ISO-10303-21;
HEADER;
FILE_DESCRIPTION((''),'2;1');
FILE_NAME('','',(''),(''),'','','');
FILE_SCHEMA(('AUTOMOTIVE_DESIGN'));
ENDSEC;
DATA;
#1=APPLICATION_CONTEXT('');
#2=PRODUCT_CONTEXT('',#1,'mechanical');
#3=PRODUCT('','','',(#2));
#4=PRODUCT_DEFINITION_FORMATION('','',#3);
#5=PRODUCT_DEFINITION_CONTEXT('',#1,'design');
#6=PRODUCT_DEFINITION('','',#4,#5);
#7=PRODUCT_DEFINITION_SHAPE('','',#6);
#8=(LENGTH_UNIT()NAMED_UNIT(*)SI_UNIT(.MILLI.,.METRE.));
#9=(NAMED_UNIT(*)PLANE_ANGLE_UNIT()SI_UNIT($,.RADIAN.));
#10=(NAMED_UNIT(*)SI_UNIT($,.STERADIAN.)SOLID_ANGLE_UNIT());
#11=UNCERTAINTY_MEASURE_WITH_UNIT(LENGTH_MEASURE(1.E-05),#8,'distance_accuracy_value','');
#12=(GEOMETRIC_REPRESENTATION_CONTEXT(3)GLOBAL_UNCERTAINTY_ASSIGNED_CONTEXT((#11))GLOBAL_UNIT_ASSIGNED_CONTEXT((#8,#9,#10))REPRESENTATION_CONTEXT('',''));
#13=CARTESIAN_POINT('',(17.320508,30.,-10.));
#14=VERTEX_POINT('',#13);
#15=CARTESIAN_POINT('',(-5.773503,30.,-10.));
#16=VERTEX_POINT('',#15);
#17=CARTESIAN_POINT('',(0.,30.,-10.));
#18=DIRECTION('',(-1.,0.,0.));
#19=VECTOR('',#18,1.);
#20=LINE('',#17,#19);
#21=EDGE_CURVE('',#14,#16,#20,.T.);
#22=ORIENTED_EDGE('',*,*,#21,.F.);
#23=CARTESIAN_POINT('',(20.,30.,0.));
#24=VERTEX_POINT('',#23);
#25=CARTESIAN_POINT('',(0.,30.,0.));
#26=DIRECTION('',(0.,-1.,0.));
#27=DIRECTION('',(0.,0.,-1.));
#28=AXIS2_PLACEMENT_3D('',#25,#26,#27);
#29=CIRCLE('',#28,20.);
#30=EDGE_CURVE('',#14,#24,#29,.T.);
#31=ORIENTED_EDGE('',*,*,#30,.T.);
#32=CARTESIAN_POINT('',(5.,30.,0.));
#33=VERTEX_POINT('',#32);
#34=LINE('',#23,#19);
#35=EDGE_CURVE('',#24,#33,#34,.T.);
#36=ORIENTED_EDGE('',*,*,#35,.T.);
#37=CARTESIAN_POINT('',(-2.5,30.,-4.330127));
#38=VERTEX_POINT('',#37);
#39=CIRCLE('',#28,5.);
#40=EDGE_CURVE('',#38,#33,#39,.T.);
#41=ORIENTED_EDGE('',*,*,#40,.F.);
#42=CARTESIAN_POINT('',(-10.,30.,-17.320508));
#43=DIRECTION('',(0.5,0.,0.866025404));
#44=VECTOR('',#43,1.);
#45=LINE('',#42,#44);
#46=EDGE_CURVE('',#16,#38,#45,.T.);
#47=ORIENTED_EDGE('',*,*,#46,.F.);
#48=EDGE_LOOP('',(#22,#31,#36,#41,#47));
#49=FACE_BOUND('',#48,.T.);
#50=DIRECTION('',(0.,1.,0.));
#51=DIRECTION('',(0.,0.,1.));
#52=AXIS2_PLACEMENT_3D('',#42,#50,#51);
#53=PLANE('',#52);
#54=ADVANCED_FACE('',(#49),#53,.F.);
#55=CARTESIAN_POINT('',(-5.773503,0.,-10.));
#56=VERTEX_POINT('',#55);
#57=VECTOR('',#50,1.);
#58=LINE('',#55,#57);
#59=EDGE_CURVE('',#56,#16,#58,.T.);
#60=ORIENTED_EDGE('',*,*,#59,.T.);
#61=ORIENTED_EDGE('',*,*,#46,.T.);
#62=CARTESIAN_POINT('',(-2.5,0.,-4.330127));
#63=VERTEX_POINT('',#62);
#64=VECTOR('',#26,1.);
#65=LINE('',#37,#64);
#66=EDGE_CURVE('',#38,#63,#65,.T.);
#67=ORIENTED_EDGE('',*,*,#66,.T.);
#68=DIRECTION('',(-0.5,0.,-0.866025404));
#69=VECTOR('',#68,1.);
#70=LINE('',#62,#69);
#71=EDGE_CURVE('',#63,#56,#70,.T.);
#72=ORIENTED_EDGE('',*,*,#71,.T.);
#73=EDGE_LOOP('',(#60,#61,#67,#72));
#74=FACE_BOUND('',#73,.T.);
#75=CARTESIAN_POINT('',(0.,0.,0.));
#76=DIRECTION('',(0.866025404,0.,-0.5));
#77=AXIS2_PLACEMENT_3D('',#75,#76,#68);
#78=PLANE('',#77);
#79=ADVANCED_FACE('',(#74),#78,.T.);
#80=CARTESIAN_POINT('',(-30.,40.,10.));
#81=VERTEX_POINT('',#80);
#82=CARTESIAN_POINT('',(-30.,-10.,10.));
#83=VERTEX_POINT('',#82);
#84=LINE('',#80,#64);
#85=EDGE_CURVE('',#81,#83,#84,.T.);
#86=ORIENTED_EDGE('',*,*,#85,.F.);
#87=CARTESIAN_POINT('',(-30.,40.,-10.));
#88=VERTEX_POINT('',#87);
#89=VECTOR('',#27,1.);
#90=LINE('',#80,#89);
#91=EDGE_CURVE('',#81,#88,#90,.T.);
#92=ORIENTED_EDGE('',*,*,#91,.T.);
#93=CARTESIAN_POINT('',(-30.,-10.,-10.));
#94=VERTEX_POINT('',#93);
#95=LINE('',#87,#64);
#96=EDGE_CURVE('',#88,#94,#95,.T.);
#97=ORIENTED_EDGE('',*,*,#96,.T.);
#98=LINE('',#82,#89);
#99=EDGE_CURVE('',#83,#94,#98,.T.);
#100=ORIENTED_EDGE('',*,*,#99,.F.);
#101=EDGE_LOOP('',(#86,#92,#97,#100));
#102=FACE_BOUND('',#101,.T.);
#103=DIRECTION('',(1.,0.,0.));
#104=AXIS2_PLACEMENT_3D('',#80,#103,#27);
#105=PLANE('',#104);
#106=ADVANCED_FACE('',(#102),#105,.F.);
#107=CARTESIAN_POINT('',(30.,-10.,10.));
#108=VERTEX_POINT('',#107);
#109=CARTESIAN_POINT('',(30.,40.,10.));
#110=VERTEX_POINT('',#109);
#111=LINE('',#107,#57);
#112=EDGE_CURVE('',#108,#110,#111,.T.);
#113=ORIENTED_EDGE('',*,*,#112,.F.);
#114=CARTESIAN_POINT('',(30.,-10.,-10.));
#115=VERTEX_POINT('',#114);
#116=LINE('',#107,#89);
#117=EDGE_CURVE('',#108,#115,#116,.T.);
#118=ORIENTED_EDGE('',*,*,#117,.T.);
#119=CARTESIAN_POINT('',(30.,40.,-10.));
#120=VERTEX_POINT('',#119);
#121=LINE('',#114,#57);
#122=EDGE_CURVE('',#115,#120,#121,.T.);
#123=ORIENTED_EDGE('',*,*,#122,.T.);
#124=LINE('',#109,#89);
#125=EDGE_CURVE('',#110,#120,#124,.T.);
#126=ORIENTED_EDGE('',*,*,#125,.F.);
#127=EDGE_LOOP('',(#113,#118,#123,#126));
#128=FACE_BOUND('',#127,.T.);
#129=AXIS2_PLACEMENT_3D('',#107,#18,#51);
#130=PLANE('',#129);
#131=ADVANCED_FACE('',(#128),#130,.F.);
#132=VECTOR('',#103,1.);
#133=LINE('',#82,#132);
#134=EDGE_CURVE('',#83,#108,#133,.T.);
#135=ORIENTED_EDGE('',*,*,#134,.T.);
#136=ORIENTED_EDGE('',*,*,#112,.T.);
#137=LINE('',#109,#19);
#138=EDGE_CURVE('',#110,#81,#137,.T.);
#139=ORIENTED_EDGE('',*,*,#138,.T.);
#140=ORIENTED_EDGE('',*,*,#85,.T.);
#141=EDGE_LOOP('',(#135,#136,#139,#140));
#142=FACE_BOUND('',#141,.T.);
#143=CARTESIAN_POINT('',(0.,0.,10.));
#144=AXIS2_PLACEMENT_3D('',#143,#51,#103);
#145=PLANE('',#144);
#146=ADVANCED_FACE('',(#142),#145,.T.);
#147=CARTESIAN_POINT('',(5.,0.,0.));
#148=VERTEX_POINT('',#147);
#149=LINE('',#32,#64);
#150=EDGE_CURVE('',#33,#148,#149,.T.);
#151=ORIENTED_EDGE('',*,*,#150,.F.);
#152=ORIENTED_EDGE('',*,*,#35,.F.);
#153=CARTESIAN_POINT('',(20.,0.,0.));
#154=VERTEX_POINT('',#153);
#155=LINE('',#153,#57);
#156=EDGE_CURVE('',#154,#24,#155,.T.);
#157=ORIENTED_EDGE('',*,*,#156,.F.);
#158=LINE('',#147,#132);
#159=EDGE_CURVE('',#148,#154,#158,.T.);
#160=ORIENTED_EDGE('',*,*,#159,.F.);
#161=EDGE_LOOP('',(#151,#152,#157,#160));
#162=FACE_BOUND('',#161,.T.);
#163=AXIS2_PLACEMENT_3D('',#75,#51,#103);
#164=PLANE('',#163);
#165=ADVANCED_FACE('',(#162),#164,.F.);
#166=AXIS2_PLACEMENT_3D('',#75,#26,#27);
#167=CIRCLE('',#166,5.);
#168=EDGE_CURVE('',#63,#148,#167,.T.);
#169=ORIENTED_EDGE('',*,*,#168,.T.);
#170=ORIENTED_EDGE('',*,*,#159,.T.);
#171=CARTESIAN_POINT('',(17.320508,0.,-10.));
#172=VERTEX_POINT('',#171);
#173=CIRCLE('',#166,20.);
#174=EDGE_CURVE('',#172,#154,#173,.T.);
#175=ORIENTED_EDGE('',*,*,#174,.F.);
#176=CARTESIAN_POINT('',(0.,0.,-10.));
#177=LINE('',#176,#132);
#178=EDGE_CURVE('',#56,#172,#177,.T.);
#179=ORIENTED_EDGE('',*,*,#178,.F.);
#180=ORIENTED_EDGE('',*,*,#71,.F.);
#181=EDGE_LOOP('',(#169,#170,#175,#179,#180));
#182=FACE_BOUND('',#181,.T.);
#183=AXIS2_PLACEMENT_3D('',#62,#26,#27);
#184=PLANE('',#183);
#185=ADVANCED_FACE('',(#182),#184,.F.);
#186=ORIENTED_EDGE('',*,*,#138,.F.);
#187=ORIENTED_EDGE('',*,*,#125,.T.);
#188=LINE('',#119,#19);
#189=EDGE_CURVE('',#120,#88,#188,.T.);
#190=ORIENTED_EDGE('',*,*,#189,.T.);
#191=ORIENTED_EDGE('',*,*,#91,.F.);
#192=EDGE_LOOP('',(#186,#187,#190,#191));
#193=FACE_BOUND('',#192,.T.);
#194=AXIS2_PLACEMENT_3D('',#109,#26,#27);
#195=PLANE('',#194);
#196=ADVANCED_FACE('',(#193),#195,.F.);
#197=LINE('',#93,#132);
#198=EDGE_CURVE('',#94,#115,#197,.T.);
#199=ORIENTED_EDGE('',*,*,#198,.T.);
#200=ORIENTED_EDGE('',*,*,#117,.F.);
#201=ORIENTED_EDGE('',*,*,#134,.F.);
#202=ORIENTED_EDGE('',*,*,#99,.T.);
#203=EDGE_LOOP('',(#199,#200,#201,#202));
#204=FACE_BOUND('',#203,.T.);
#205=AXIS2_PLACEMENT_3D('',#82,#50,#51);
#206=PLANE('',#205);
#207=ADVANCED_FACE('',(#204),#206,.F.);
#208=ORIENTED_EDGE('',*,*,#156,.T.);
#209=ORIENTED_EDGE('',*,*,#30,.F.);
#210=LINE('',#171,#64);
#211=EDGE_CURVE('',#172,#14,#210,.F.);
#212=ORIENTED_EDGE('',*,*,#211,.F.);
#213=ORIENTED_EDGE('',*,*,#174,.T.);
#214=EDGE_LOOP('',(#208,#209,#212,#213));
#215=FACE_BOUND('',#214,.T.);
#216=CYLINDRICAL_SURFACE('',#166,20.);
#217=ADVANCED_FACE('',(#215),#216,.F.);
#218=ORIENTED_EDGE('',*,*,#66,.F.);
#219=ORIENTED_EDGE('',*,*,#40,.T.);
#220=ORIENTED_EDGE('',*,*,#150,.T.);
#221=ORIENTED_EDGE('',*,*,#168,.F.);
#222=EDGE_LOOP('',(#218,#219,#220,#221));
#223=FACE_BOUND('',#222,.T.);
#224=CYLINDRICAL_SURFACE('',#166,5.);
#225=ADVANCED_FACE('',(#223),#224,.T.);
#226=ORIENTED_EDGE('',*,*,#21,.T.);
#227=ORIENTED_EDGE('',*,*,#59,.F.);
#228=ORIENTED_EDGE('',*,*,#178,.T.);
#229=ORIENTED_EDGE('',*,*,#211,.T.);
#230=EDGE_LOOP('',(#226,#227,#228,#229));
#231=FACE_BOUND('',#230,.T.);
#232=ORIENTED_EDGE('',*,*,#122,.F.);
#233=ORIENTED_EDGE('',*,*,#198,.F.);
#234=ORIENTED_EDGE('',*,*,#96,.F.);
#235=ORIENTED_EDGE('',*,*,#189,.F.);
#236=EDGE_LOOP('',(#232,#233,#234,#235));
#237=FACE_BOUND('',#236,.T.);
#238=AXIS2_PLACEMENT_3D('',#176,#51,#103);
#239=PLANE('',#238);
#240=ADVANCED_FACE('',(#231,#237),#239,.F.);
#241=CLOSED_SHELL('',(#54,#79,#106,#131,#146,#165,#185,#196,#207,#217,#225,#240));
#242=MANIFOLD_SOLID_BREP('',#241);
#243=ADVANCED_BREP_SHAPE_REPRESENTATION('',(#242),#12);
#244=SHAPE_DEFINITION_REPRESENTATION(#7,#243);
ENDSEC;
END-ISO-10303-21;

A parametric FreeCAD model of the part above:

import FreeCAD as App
import Part
import Sketcher
Q = App.Units.Quantity

doc = App.newDocument("Part")
body = doc.addObject("PartDesign::Body", "Body")

sketch1 = body.newObject("Sketcher::SketchObject", "Sketch")
sketch1.AttachmentSupport = (doc.getObject("XY_Plane"), [""])
sketch1.MapMode = "FlatFace"
sketch1.addGeometry([
    Part.LineSegment(App.Vector(-30, 40, 0), App.Vector(-30, -10, 0)),
    Part.LineSegment(App.Vector(-30, -10, 0), App.Vector(30, -10, 0)),
    Part.LineSegment(App.Vector(30, -10, 0), App.Vector(30, 40, 0)),
    Part.LineSegment(App.Vector(30, 40, 0), App.Vector(-30, 40, 0)),
], False)
sketch1.addConstraint([
    Sketcher.Constraint("Coincident", 0, 2, 1, 1),
    Sketcher.Constraint("Coincident", 1, 2, 2, 1),
    Sketcher.Constraint("Coincident", 2, 2, 3, 1),
    Sketcher.Constraint("Coincident", 3, 2, 0, 1),
    Sketcher.Constraint("Vertical", 0),
    Sketcher.Constraint("Horizontal", 1),
    Sketcher.Constraint("Vertical", 2),
    Sketcher.Constraint("Horizontal", 3),
    Sketcher.Constraint("DistanceX", 1, 1, 1, 2, Q("60 mm")),
    Sketcher.Constraint("DistanceY", 0, 2, 0, 1, Q("50 mm")),
    Sketcher.Constraint("DistanceX", 0, 2, -1, 1, Q("30 mm")),
    Sketcher.Constraint("DistanceY", 0, 2, -1, 1, Q("10 mm")),
])
pad1 = body.newObject("PartDesign::Pad", "Pad")
pad1.Profile = sketch1
pad1.Length = 20
pad1.Midplane = True

sketch2 = body.newObject("Sketcher::SketchObject", "Sketch001")
sketch2.AttachmentSupport = (doc.getObject("XY_Plane"), [""])
sketch2.MapMode = "FlatFace"
sketch2.addGeometry([
    Part.LineSegment(App.Vector(5, 30, 0), App.Vector(5, 0, 0)),
    Part.LineSegment(App.Vector(5, 0, 0), App.Vector(20, 0, 0)),
    Part.LineSegment(App.Vector(20, 0, 0), App.Vector(20, 30, 0)),
    Part.LineSegment(App.Vector(20, 30, 0), App.Vector(5, 30, 0)),
], False)
sketch2.addConstraint([
    Sketcher.Constraint("Coincident", 0, 2, 1, 1),
    Sketcher.Constraint("Coincident", 1, 2, 2, 1),
    Sketcher.Constraint("Coincident", 2, 2, 3, 1),
    Sketcher.Constraint("Coincident", 3, 2, 0, 1),
    Sketcher.Constraint("Vertical", 0),
    Sketcher.Constraint("Horizontal", 1),
    Sketcher.Constraint("Vertical", 2),
    Sketcher.Constraint("Horizontal", 3),
    Sketcher.Constraint("PointOnObject", 0, 2, -1),
    Sketcher.Constraint("DistanceX", 1, 1, 1, 2, Q("15 mm")),
    Sketcher.Constraint("DistanceY", 0, 2, 0, 1, Q("30 mm")),
    Sketcher.Constraint("DistanceX", -1, 1, 0, 2, Q("5 mm")),
])
groove = body.newObject("PartDesign::Groove", "Groove")
groove.Profile = sketch2
groove.ReferenceAxis = (sketch2, ["V_Axis"])
groove.Angle = 120

doc.recompute()
